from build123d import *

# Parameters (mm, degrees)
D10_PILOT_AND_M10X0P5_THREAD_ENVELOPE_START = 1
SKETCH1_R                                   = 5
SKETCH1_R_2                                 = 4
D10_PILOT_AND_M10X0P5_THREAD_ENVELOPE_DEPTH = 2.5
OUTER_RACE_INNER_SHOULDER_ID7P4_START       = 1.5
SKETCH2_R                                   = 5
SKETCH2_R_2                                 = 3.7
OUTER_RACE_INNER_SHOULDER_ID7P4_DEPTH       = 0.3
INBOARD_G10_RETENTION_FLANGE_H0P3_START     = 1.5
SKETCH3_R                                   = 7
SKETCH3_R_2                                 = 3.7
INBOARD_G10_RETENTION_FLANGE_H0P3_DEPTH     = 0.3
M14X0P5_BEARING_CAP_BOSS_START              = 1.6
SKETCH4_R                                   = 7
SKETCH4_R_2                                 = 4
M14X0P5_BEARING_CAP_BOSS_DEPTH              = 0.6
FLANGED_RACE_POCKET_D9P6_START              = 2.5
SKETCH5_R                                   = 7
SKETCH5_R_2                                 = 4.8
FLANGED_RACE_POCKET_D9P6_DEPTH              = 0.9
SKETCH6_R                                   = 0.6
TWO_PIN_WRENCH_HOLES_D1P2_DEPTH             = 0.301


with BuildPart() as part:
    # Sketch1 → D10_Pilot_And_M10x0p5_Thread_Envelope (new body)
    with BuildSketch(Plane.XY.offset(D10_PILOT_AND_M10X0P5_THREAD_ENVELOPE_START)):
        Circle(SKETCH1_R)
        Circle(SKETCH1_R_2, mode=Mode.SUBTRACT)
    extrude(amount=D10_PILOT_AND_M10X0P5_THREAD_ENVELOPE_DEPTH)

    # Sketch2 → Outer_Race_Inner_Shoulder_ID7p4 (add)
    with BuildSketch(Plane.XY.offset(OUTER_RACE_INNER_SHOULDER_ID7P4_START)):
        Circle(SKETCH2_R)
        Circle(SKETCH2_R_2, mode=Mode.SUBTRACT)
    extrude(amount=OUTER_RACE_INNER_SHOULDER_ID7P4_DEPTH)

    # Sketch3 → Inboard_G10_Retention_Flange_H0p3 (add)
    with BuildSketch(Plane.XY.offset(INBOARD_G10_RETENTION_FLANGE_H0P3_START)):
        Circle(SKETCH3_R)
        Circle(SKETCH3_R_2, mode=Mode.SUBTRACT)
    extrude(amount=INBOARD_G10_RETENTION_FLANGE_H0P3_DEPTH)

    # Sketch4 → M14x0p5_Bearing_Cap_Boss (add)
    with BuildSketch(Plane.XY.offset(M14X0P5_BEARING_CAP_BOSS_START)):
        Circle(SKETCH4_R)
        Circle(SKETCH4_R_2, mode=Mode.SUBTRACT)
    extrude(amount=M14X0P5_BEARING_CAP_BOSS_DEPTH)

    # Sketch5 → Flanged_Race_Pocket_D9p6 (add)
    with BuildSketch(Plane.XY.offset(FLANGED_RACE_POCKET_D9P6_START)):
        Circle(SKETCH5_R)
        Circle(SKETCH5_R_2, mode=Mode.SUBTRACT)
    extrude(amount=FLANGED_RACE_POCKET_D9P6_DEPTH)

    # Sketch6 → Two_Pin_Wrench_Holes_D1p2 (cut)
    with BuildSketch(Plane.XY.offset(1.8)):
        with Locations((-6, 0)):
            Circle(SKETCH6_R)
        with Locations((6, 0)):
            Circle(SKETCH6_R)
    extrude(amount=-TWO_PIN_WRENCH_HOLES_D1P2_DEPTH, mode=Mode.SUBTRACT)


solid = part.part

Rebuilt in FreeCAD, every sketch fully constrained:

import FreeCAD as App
import Part
import Sketcher

V = App.Vector

doc = App.newDocument("Part")
body = doc.addObject("PartDesign::Body", "Body")

sketch1 = body.newObject("Sketcher::SketchObject", "Sketch")
sketch1.AttachmentSupport = (doc.getObject("XY_Plane"), [""])
sketch1.MapMode = "FlatFace"
sketch1.AttachmentOffset = App.Placement(V(0, 0, 1), App.Rotation())
sketch1.addGeometry([
    Part.Circle(V(0, 0, 0), V(0, 0, 1), 5),
    Part.Circle(V(0, 0, 0), V(0, 0, 1), 4),
], False)
sketch1.addConstraint([
    Sketcher.Constraint("Coincident", 0, 3, -1, 1),
    Sketcher.Constraint("Coincident", 1, 3, -1, 1),
    Sketcher.Constraint("Diameter", 0, 10.0),
    Sketcher.Constraint("Diameter", 1, 8.0),
])
pad1 = body.newObject("PartDesign::Pad", "Pad")
pad1.Profile = sketch1
pad1.Length = 2.5

sketch2 = body.newObject("Sketcher::SketchObject", "Sketch001")
sketch2.AttachmentSupport = (doc.getObject("XY_Plane"), [""])
sketch2.MapMode = "FlatFace"
sketch2.AttachmentOffset = App.Placement(V(0, 0, 1.5), App.Rotation())
sketch2.addGeometry([
    Part.Circle(V(0, 0, 0), V(0, 0, 1), 5),
    Part.Circle(V(0, 0, 0), V(0, 0, 1), 3.7),
], False)
sketch2.addConstraint([
    Sketcher.Constraint("Coincident", 0, 3, -1, 1),
    Sketcher.Constraint("Coincident", 1, 3, -1, 1),
    Sketcher.Constraint("Diameter", 0, 10.0),
    Sketcher.Constraint("Diameter", 1, 7.4),
])
pad2 = body.newObject("PartDesign::Pad", "Pad001")
pad2.Profile = sketch2
pad2.Length = 0.3

sketch3 = body.newObject("Sketcher::SketchObject", "Sketch002")
sketch3.AttachmentSupport = (doc.getObject("XY_Plane"), [""])
sketch3.MapMode = "FlatFace"
sketch3.AttachmentOffset = App.Placement(V(0, 0, 1.5), App.Rotation())
sketch3.addGeometry([
    Part.Circle(V(0, 0, 0), V(0, 0, 1), 7),
    Part.Circle(V(0, 0, 0), V(0, 0, 1), 3.7),
], False)
sketch3.addConstraint([
    Sketcher.Constraint("Coincident", 0, 3, -1, 1),
    Sketcher.Constraint("Coincident", 1, 3, -1, 1),
    Sketcher.Constraint("Diameter", 0, 14.0),
    Sketcher.Constraint("Diameter", 1, 7.4),
])
pad3 = body.newObject("PartDesign::Pad", "Pad002")
pad3.Profile = sketch3
pad3.Length = 0.3

sketch4 = body.newObject("Sketcher::SketchObject", "Sketch003")
sketch4.AttachmentSupport = (doc.getObject("XY_Plane"), [""])
sketch4.MapMode = "FlatFace"
sketch4.AttachmentOffset = App.Placement(V(0, 0, 1.6), App.Rotation())
sketch4.addGeometry([
    Part.Circle(V(0, 0, 0), V(0, 0, 1), 7),
    Part.Circle(V(0, 0, 0), V(0, 0, 1), 4),
], False)
sketch4.addConstraint([
    Sketcher.Constraint("Coincident", 0, 3, -1, 1),
    Sketcher.Constraint("Coincident", 1, 3, -1, 1),
    Sketcher.Constraint("Diameter", 0, 14.0),
    Sketcher.Constraint("Diameter", 1, 8.0),
])
pad4 = body.newObject("PartDesign::Pad", "Pad003")
pad4.Profile = sketch4
pad4.Length = 0.6

sketch5 = body.newObject("Sketcher::SketchObject", "Sketch004")
sketch5.AttachmentSupport = (doc.getObject("XY_Plane"), [""])
sketch5.MapMode = "FlatFace"
sketch5.AttachmentOffset = App.Placement(V(0, 0, 2.5), App.Rotation())
sketch5.addGeometry([
    Part.Circle(V(0, 0, 0), V(0, 0, 1), 7),
    Part.Circle(V(0, 0, 0), V(0, 0, 1), 4.8),
], False)
sketch5.addConstraint([
    Sketcher.Constraint("Coincident", 0, 3, -1, 1),
    Sketcher.Constraint("Coincident", 1, 3, -1, 1),
    Sketcher.Constraint("Diameter", 0, 14.0),
    Sketcher.Constraint("Diameter", 1, 9.6),
])
pad5 = body.newObject("PartDesign::Pad", "Pad004")
pad5.Profile = sketch5
pad5.Length = 0.9

sketch6 = body.newObject("Sketcher::SketchObject", "Sketch005")
sketch6.AttachmentSupport = (doc.getObject("XY_Plane"), [""])
sketch6.MapMode = "FlatFace"
sketch6.AttachmentOffset = App.Placement(V(0, 0, 1.8), App.Rotation())
sketch6.addGeometry([
    Part.Circle(V(-6, 0, 0), V(0, 0, 1), 0.6),
    Part.Circle(V(6, 0, 0), V(0, 0, 1), 0.6),
], False)
sketch6.addConstraint([
    Sketcher.Constraint("Equal", 0, 1),
    Sketcher.Constraint("Symmetric", 0, 3, 1, 3, -1, 1),
    Sketcher.Constraint("PointOnObject", 0, 3, -1),
    Sketcher.Constraint("Diameter", 0, 1.2),
    Sketcher.Constraint("DistanceX", 0, 3, -1, 1, 6.0),
])
pocket1 = body.newObject("PartDesign::Pocket", "Pocket")
pocket1.Profile = sketch6
pocket1.Length = 0.301

doc.recompute()
